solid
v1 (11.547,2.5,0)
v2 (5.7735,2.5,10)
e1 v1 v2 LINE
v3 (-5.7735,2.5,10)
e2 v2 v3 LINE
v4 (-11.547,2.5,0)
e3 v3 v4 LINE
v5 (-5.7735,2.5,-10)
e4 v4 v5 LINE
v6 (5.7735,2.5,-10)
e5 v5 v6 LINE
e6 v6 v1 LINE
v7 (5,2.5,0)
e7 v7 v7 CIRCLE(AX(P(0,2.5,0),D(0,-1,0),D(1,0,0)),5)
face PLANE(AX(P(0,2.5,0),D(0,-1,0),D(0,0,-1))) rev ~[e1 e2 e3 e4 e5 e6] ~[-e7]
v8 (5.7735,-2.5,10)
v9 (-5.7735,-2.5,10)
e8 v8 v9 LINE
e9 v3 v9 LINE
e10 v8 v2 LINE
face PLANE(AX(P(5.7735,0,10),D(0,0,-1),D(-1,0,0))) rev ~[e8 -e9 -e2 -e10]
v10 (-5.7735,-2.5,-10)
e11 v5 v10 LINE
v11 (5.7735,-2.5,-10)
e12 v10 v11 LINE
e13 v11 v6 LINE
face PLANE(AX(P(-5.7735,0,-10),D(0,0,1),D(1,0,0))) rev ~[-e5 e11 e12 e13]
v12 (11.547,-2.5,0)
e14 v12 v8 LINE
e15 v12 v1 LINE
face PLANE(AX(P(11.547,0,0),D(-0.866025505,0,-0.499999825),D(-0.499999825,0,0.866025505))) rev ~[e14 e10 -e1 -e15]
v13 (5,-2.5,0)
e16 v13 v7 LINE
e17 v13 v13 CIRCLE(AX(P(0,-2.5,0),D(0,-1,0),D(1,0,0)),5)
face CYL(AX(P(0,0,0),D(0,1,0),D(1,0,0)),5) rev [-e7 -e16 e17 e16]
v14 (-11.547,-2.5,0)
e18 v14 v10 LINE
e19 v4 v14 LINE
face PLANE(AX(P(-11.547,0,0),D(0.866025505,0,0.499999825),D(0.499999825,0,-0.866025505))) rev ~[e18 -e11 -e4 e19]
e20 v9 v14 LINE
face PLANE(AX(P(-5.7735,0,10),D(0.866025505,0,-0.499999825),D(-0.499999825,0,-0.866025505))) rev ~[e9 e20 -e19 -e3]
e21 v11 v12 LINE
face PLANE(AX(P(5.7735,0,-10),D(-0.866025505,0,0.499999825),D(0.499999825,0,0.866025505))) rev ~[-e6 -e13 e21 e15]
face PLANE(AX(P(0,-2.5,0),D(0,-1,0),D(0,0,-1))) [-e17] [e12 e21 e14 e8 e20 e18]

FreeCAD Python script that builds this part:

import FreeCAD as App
import Part
import Sketcher
Q = App.Units.Quantity

doc = App.newDocument("Part")
body = doc.addObject("PartDesign::Body", "Body")

# Sketch on XZ plane
sketch1 = doc.addObject("Sketcher::SketchObject", "Sketch")
body.addObject(sketch1)
sketch1.AttachmentSupport = (doc.XZ_Plane, [""])
sketch1.MapMode = "FlatFace"
sketch1.addGeometry([
    Part.LineSegment(App.Vector(12, 0, 0), App.Vector(6, 10, 0)),  # 0
    Part.LineSegment(App.Vector(6, 10, 0), App.Vector(-6, 10, 0)),  # 1
    Part.LineSegment(App.Vector(-6, 10, 0), App.Vector(-12, 0, 0)),  # 2
    Part.LineSegment(App.Vector(-12, 0, 0), App.Vector(-6, -10, 0)),  # 3
    Part.LineSegment(App.Vector(-6, -10, 0), App.Vector(6, -10, 0)),  # 4
    Part.LineSegment(App.Vector(6, -10, 0), App.Vector(12, 0, 0)),  # 5
    Part.Circle(App.Vector(0, 0, 0), App.Vector(0, 0, 1), 5),  # 6
], False)
sketch1.addConstraint([
    Sketcher.Constraint("Coincident", 0, 2, 1, 1),
    Sketcher.Constraint("Coincident", 1, 2, 2, 1),
    Sketcher.Constraint("Coincident", 2, 2, 3, 1),
    Sketcher.Constraint("Coincident", 3, 2, 4, 1),
    Sketcher.Constraint("Coincident", 4, 2, 5, 1),
    Sketcher.Constraint("Coincident", 5, 2, 0, 1),
    Sketcher.Constraint("Horizontal", 1),
    Sketcher.Constraint("Horizontal", 4),
    Sketcher.Constraint("Coincident", 6, 3, -1, 1),
    Sketcher.Constraint("Symmetric", 0, 2, 3, 2, -1, 1),
    Sketcher.Constraint("Symmetric", 2, 2, 5, 2, -1, 1),
    Sketcher.Constraint("PointOnObject", 2, 2, -1),
    Sketcher.Constraint("Parallel", 2, 5),
    Sketcher.Constraint("Vertical", 1, 2, 3, 2),
    Sketcher.Constraint("Diameter", 6, Q("10 mm")),
    Sketcher.Constraint("Angle", 0, Q("120 deg")),
    Sketcher.Constraint("DistanceY", -1, 1, 0, 2, Q("10 mm")),
    Sketcher.Constraint("DistanceX", 1, 2, 1, 1, Q("11.547 mm")),
])
pad1 = doc.addObject("PartDesign::Pad", "Pad")
body.addObject(pad1)
pad1.Profile = sketch1
pad1.Length = 5
pad1.Midplane = True

doc.recompute()
